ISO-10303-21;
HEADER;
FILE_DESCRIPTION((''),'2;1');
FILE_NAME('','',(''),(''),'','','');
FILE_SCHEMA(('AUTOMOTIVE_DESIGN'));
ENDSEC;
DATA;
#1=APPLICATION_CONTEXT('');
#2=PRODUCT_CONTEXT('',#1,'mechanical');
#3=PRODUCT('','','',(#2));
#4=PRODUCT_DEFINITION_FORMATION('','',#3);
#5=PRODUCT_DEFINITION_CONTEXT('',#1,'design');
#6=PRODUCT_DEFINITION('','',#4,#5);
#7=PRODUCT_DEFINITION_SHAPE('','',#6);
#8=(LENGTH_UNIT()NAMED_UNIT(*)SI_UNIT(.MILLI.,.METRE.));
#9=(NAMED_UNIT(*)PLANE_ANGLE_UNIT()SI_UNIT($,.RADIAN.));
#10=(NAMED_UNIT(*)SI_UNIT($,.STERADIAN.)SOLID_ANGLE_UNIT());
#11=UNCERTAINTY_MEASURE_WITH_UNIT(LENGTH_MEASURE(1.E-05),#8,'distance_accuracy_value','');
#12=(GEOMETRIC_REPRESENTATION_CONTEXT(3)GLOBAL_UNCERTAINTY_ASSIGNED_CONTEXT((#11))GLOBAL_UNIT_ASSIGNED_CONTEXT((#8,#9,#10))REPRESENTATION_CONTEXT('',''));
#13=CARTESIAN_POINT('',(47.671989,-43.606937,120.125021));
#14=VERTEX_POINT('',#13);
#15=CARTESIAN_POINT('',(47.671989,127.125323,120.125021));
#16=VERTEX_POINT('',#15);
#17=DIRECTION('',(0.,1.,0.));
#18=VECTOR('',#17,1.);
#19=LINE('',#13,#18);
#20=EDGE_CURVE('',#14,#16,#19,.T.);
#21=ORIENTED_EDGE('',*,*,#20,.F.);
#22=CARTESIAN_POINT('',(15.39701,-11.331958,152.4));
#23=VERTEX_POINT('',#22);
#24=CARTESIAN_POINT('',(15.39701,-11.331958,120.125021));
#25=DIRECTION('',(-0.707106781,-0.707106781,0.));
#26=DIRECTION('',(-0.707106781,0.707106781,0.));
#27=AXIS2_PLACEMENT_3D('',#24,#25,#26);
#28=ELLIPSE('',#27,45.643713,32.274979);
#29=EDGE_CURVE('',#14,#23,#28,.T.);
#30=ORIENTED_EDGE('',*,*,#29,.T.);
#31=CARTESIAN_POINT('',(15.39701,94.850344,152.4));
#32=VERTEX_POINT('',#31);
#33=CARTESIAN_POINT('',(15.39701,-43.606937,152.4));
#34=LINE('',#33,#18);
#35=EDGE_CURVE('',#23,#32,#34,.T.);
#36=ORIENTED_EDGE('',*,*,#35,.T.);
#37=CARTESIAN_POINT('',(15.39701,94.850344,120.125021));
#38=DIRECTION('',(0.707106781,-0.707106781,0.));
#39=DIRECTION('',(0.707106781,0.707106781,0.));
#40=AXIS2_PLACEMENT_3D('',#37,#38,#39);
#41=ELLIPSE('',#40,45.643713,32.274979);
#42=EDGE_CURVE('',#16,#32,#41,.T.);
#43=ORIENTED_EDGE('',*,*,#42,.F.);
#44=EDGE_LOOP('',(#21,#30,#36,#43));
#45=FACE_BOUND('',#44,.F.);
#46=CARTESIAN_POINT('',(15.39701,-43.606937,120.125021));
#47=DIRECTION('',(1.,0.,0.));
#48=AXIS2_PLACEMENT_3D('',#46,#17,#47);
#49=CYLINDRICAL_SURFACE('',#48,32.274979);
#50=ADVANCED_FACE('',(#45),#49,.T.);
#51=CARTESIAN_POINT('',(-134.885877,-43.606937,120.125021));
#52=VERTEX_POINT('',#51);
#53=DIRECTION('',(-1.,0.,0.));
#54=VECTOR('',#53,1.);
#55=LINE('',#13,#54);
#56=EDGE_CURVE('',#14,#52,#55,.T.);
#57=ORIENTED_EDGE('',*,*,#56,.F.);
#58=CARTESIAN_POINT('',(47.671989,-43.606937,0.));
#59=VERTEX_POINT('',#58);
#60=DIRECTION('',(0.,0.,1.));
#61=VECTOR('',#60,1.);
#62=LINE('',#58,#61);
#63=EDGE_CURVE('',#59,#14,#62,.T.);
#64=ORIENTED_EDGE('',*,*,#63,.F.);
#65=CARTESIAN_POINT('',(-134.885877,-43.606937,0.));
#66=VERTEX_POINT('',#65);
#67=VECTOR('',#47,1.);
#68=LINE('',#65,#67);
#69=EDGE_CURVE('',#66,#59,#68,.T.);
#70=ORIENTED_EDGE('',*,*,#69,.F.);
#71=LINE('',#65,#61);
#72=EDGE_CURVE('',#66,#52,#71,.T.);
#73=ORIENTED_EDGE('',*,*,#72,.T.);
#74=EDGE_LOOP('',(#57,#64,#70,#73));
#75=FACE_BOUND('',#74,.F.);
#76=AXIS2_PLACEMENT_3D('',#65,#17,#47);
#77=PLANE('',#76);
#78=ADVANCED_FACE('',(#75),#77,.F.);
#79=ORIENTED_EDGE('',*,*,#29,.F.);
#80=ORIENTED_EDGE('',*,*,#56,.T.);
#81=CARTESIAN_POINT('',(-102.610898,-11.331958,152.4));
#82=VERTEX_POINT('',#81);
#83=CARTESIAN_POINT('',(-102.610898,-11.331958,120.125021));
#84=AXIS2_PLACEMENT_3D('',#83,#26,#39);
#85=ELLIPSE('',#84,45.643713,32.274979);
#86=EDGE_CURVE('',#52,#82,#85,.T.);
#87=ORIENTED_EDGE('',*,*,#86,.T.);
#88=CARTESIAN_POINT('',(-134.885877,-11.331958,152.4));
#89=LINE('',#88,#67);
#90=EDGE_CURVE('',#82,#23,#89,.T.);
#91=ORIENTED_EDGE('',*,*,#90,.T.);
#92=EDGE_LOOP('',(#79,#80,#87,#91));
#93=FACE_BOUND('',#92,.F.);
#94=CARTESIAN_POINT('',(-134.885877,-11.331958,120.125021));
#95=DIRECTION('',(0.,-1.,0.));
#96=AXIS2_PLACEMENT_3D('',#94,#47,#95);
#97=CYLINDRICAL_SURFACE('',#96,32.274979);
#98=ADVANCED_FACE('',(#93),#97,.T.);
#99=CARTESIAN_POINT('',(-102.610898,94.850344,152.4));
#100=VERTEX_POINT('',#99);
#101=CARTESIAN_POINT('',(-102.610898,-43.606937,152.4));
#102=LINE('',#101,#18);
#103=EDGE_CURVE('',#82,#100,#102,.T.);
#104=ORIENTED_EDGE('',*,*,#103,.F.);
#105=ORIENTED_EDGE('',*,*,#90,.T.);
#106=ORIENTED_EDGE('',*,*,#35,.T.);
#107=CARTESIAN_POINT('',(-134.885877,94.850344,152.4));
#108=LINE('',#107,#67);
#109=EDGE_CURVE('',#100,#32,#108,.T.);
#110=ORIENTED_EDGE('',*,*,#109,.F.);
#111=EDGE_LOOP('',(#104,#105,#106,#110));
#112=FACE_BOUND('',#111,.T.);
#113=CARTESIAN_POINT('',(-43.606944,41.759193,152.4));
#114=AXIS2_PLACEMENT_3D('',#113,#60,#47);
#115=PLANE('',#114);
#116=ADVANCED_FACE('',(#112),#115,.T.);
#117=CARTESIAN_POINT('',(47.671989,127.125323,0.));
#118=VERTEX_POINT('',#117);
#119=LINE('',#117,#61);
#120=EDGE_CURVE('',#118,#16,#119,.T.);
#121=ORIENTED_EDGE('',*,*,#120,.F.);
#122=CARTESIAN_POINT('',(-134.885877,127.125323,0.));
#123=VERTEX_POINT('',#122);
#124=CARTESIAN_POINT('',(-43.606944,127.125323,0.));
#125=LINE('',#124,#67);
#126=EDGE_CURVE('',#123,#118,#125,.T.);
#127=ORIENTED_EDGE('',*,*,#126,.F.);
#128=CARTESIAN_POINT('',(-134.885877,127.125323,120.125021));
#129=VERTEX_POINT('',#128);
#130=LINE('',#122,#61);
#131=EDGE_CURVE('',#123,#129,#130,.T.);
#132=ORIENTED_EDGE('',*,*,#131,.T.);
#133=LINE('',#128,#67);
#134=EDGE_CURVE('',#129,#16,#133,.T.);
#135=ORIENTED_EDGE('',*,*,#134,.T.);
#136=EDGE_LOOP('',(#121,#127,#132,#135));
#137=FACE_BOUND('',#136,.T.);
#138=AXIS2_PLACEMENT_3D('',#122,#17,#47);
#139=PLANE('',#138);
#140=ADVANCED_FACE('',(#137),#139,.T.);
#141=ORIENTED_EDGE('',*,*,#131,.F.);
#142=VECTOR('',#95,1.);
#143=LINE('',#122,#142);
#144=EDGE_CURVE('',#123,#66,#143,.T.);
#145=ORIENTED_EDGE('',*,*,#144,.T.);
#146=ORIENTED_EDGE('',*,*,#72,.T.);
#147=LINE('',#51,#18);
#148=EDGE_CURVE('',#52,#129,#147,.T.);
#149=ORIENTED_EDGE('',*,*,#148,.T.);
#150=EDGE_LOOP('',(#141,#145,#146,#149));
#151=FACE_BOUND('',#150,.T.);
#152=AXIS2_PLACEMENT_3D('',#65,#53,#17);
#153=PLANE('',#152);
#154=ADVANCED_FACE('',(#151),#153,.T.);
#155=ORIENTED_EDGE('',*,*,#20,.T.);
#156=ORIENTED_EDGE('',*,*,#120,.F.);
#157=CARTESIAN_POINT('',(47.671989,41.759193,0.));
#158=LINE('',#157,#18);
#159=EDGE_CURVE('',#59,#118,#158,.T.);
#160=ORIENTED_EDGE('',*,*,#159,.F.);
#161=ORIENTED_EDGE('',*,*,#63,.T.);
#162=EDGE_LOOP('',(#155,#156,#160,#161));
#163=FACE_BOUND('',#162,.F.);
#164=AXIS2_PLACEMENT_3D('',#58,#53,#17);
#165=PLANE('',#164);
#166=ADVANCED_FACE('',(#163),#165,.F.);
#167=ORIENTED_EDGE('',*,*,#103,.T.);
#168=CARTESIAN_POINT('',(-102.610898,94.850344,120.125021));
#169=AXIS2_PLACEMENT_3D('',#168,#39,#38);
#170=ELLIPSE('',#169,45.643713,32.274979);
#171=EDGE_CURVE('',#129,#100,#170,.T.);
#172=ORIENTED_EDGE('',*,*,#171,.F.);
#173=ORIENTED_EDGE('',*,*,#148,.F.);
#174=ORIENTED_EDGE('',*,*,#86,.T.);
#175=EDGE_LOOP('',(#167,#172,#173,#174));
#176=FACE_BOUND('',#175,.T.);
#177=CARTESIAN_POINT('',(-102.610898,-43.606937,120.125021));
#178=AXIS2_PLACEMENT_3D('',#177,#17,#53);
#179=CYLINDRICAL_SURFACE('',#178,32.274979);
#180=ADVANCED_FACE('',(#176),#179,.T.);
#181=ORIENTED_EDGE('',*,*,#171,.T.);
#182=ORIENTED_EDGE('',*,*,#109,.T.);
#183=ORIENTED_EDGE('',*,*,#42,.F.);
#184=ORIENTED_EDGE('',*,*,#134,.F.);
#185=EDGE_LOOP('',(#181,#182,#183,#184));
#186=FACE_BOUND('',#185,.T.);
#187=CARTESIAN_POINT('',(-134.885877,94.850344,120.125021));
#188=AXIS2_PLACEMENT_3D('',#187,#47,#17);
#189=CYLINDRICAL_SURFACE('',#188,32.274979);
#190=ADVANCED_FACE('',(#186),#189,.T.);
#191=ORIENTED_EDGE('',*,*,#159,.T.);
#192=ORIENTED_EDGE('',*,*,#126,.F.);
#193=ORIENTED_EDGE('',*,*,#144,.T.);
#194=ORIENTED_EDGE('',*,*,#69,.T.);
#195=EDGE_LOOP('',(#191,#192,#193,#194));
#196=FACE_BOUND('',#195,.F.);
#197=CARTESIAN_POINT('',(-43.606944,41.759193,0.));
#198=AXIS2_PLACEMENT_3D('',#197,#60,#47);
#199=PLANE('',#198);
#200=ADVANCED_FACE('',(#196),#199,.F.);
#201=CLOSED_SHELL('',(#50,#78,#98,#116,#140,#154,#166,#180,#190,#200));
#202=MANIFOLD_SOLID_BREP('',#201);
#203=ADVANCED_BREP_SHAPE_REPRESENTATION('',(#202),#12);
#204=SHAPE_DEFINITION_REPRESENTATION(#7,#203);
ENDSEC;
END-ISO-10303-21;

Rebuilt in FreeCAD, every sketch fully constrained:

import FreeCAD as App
import Part
import Sketcher
from FreeCAD import Vector
Q = App.Units.Quantity


def edges_at(feature, points):
    """Names of the edges that pass closest to the given points."""
    edges = feature.Shape.Edges
    near = lambda p: min(range(len(edges)), key=lambda i: edges[i].distToShape(Part.Vertex(*p))[0])
    return sorted({f"Edge{near(p) + 1}" for p in points})


def add_polygon(sketch, points):
    """Adds a closed chain of lines whose ends are joined by coincident constraints."""
    first, n = sketch.GeometryCount, len(points)
    for a, b in zip(points, points[1:] + points[:1]):
        sketch.addGeometry(Part.LineSegment(App.Vector(*a, 0), App.Vector(*b, 0)), False)
    for i in range(n):
        sketch.addConstraint(Sketcher.Constraint("Coincident", first + i, 2, first + (i + 1) % n, 1))

doc = App.newDocument("Part")
body = doc.addObject("PartDesign::Body", "Body")

# Sketch on XY plane
sketch1 = doc.addObject("Sketcher::SketchObject", "Sketch")
body.addObject(sketch1)
sketch1.AttachmentSupport = (doc.XY_Plane, [""])
sketch1.MapMode = "FlatFace"
add_polygon(sketch1, [(-134.885877, 127.125323), (-134.885877, -43.606937), (47.671989, -43.606937), (47.671989, 127.125323)])  # lines 0-3
sketch1.addConstraint([
    Sketcher.Constraint("Vertical", 0),
    Sketcher.Constraint("Horizontal", 1),
    Sketcher.Constraint("Vertical", 2),
    Sketcher.Constraint("Horizontal", 3),
    Sketcher.Constraint("DistanceY", 0, 2, 0, 1, 170.73226),
    Sketcher.Constraint("DistanceX", 1, 1, 1, 2, 182.557866),
    Sketcher.Constraint("DistanceX", -1, 1, 1, 2, 47.671989),
    Sketcher.Constraint("DistanceY", 0, 2, -1, 1, 43.606937),
])
pad1 = doc.addObject("PartDesign::Pad", "Pad")
body.addObject(pad1)
pad1.Profile = sketch1
pad1.Length = Q("6 in")
doc.recompute()

fillet = doc.addObject("PartDesign::Fillet", "Fillet")
body.addObject(fillet)
fillet.Base = (pad1, edges_at(pad1, [
    (-43.607, 127.125, 152.4),
    (47.672, 41.759, 152.4),
    (-43.607, -43.607, 152.4),
    (-134.886, 41.759, 152.4),
]))
fillet.Radius = 32.274979

# Sketch on XY plane
sketch2 = doc.addObject("Sketcher::SketchObject", "Sketch001")
body.addObject(sketch2)
sketch2.AttachmentSupport = (doc.XY_Plane, [""])
sketch2.MapMode = "FlatFace"
add_polygon(sketch2, [(-134.885877, -43.606937), (-134.885877, 80.69703), (-209.891543, 80.69703), (-209.891543, -80.69703), (0, -80.69703), (0, -43.606937)])  # lines 0-5
sketch2.addConstraint([
    Sketcher.Constraint("Vertical", 0),
    Sketcher.Constraint("Horizontal", 1),
    Sketcher.Constraint("Vertical", 2),
    Sketcher.Constraint("Horizontal", 3),
    Sketcher.Constraint("Vertical", 4),
    Sketcher.Constraint("Horizontal", 5),
    Sketcher.Constraint("PointOnObject", 3, 2, -2),
    Sketcher.Constraint("DistanceY", 2, 2, 2, 1, 161.39406),
    Sketcher.Constraint("DistanceX", 1, 2, 1, 1, 75.005666),
    Sketcher.Constraint("DistanceX", 3, 1, 3, 2, 209.891543),
    Sketcher.Constraint("DistanceY", 0, 1, 0, 2, 124.303967),
    Sketcher.Constraint("DistanceY", -1, 1, 0, 2, 80.69703),
])
pocket1 = doc.addObject("PartDesign::Pocket", "Pocket")
body.addObject(pocket1)
pocket1.Profile = sketch2
pocket1.Length = 187.378392
pocket1.Reversed = True

doc.recompute()
